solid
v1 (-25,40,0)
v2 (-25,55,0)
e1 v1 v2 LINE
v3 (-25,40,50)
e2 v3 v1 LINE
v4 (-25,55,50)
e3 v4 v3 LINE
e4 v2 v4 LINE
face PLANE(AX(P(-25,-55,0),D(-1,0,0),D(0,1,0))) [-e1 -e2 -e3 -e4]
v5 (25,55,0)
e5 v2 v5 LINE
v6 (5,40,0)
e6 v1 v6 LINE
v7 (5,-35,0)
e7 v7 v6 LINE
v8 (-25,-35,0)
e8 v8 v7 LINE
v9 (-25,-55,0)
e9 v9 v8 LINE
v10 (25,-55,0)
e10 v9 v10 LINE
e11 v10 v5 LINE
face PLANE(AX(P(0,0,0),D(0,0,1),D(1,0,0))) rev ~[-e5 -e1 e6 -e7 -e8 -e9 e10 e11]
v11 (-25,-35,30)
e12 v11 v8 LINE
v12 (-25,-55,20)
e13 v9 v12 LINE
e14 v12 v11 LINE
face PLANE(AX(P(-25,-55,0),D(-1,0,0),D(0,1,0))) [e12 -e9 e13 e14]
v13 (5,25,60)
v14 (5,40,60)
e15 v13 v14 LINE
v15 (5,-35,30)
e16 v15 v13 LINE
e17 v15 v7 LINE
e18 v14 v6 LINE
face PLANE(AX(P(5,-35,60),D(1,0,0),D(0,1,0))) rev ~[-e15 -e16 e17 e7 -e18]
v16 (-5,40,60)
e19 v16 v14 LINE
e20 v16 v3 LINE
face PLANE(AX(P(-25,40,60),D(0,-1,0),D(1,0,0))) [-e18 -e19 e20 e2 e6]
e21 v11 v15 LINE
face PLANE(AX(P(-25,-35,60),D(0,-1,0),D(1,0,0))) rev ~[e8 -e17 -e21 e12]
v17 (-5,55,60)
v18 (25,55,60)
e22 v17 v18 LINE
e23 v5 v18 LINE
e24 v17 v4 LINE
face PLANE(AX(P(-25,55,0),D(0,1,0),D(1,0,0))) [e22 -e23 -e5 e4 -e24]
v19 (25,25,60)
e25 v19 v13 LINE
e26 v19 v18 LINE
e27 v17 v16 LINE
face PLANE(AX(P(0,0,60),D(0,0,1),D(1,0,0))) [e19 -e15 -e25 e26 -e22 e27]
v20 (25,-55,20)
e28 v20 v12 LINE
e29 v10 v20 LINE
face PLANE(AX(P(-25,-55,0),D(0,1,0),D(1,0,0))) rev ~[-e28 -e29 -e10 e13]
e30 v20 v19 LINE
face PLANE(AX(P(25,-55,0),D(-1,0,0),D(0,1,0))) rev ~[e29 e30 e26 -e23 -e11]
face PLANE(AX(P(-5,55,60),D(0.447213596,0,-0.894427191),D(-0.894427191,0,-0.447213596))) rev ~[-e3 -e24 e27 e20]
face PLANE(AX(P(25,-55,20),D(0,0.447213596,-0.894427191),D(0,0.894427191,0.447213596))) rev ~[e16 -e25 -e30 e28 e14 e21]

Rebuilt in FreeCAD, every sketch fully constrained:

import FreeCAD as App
import Part
import Sketcher
from FreeCAD import Vector
Q = App.Units.Quantity


def add_polygon(sketch, points):
    """Adds a closed chain of lines whose ends are joined by coincident constraints."""
    first, n = sketch.GeometryCount, len(points)
    for a, b in zip(points, points[1:] + points[:1]):
        sketch.addGeometry(Part.LineSegment(App.Vector(*a, 0), App.Vector(*b, 0)), False)
    for i in range(n):
        sketch.addConstraint(Sketcher.Constraint("Coincident", first + i, 2, first + (i + 1) % n, 1))

doc = App.newDocument("Part")
params = doc.addObject("Spreadsheet::Sheet", "Params")
for row, (alias, value) in enumerate([
    ("sketch1_width", "50 mm"),
    ("sketch1_height", "110 mm"),
    ("pad1_length", "60 mm"),
    ("sketch2_width", "30 mm"),
    ("sketch2_height", "75 mm"),
    ("pocket1_length", "60 mm"),
    ("sketch3_width", "20 mm"),
    ("sketch3_height", "10 mm"),
    ("pocket2_length", "15 mm"),
    ("sketch4_width", "80 mm"),
    ("sketch4_height", "40 mm"),
    ("pocket3_length", "50 mm"),
], start=1):
    params.set(f"A{row}", alias)
    params.set(f"B{row}", "=" + value)
    params.setAlias(f"B{row}", alias)

body = doc.addObject("PartDesign::Body", "Body")

# Sketch on XY plane
sketch1 = body.newObject("Sketcher::SketchObject", "Sketch")
sketch1.AttachmentSupport = (doc.getObject("XY_Plane"), [""])
sketch1.MapMode = "FlatFace"
add_polygon(sketch1, [(-25, 55), (-25, -55), (25, -55), (25, 55)])  # lines 0-3
sketch1.addConstraint([
    Sketcher.Constraint("Vertical", 0),
    Sketcher.Constraint("Horizontal", 1),
    Sketcher.Constraint("Vertical", 2),
    Sketcher.Constraint("Horizontal", 3),
    Sketcher.Constraint("Symmetric", 0, 2, 2, 2, -1, 1),
    Sketcher.Constraint("DistanceX", 1, 1, 1, 2, Q("50 mm")),
    Sketcher.Constraint("DistanceY", 0, 2, 0, 1, Q("110 mm")),
])
sketch1.setExpression("Constraints[9]", "Params.sketch1_width")
sketch1.setExpression("Constraints[10]", "Params.sketch1_height")
pad1 = body.newObject("PartDesign::Pad", "Pad")
pad1.Profile = sketch1
pad1.setExpression("Length", "Params.pad1_length")

# Sketch on XY plane
sketch2 = body.newObject("Sketcher::SketchObject", "Sketch001")
sketch2.AttachmentSupport = (doc.getObject("XY_Plane"), [""])
sketch2.MapMode = "FlatFace"
sketch2.AttachmentOffset = App.Placement(Vector(0, 0, 60), App.Rotation())
add_polygon(sketch2, [(-25, 40), (-25, -35), (5, -35), (5, 40)])  # lines 0-3
sketch2.addConstraint([
    Sketcher.Constraint("Vertical", 0),
    Sketcher.Constraint("Horizontal", 1),
    Sketcher.Constraint("Vertical", 2),
    Sketcher.Constraint("Horizontal", 3),
    Sketcher.Constraint("DistanceX", 1, 1, 1, 2, Q("30 mm")),
    Sketcher.Constraint("DistanceY", 0, 2, 0, 1, Q("75 mm")),
    Sketcher.Constraint("DistanceX", 0, 2, -1, 1, Q("25 mm")),
    Sketcher.Constraint("DistanceY", 0, 2, -1, 1, Q("35 mm")),
])
sketch2.setExpression("Constraints[8]", "Params.sketch2_width")
sketch2.setExpression("Constraints[9]", "Params.sketch2_height")
pocket1 = body.newObject("PartDesign::Pocket", "Pocket")
pocket1.Profile = sketch2
pocket1.setExpression("Length", "Params.pocket1_length")

# Sketch on XZ plane
sketch3 = body.newObject("Sketcher::SketchObject", "Sketch002")
sketch3.AttachmentSupport = (doc.getObject("XZ_Plane"), [""])
sketch3.MapMode = "FlatFace"
sketch3.AttachmentOffset = App.Placement(Vector(0, 0, -55), App.Rotation())
add_polygon(sketch3, [(-5, 60), (-25, 50), (-25, 60)])  # lines 0-2
sketch3.addConstraint([
    Sketcher.Constraint("Vertical", 1),
    Sketcher.Constraint("Horizontal", 2),
    Sketcher.Constraint("DistanceX", 2, 1, 2, 2, Q("20 mm")),
    Sketcher.Constraint("DistanceY", 1, 1, 1, 2, Q("10 mm")),
    Sketcher.Constraint("DistanceX", 0, 2, -1, 1, Q("25 mm")),
    Sketcher.Constraint("DistanceY", -1, 1, 0, 2, Q("50 mm")),
])
sketch3.setExpression("Constraints[5]", "Params.sketch3_width")
sketch3.setExpression("Constraints[6]", "Params.sketch3_height")
pocket2 = body.newObject("PartDesign::Pocket", "Pocket001")
pocket2.Profile = sketch3
pocket2.setExpression("Length", "Params.pocket2_length")
pocket2.Reversed = True

# Sketch on YZ plane
sketch4 = body.newObject("Sketcher::SketchObject", "Sketch003")
sketch4.AttachmentSupport = (doc.getObject("YZ_Plane"), [""])
sketch4.MapMode = "FlatFace"
sketch4.AttachmentOffset = App.Placement(Vector(0, 0, 25), App.Rotation())
add_polygon(sketch4, [(-55, 20), (25, 60), (-55, 60)])  # lines 0-2
sketch4.addConstraint([
    Sketcher.Constraint("Horizontal", 1),
    Sketcher.Constraint("Vertical", 2),
    Sketcher.Constraint("DistanceX", 1, 2, 1, 1, Q("80 mm")),
    Sketcher.Constraint("DistanceY", 2, 2, 2, 1, Q("40 mm")),
    Sketcher.Constraint("DistanceX", -1, 1, 0, 2, Q("25 mm")),
    Sketcher.Constraint("DistanceY", -1, 1, 0, 2, Q("60 mm")),
])
sketch4.setExpression("Constraints[5]", "Params.sketch4_width")
sketch4.setExpression("Constraints[6]", "Params.sketch4_height")
pocket3 = body.newObject("PartDesign::Pocket", "Pocket002")
pocket3.Profile = sketch4
pocket3.setExpression("Length", "Params.pocket3_length")

doc.recompute()
